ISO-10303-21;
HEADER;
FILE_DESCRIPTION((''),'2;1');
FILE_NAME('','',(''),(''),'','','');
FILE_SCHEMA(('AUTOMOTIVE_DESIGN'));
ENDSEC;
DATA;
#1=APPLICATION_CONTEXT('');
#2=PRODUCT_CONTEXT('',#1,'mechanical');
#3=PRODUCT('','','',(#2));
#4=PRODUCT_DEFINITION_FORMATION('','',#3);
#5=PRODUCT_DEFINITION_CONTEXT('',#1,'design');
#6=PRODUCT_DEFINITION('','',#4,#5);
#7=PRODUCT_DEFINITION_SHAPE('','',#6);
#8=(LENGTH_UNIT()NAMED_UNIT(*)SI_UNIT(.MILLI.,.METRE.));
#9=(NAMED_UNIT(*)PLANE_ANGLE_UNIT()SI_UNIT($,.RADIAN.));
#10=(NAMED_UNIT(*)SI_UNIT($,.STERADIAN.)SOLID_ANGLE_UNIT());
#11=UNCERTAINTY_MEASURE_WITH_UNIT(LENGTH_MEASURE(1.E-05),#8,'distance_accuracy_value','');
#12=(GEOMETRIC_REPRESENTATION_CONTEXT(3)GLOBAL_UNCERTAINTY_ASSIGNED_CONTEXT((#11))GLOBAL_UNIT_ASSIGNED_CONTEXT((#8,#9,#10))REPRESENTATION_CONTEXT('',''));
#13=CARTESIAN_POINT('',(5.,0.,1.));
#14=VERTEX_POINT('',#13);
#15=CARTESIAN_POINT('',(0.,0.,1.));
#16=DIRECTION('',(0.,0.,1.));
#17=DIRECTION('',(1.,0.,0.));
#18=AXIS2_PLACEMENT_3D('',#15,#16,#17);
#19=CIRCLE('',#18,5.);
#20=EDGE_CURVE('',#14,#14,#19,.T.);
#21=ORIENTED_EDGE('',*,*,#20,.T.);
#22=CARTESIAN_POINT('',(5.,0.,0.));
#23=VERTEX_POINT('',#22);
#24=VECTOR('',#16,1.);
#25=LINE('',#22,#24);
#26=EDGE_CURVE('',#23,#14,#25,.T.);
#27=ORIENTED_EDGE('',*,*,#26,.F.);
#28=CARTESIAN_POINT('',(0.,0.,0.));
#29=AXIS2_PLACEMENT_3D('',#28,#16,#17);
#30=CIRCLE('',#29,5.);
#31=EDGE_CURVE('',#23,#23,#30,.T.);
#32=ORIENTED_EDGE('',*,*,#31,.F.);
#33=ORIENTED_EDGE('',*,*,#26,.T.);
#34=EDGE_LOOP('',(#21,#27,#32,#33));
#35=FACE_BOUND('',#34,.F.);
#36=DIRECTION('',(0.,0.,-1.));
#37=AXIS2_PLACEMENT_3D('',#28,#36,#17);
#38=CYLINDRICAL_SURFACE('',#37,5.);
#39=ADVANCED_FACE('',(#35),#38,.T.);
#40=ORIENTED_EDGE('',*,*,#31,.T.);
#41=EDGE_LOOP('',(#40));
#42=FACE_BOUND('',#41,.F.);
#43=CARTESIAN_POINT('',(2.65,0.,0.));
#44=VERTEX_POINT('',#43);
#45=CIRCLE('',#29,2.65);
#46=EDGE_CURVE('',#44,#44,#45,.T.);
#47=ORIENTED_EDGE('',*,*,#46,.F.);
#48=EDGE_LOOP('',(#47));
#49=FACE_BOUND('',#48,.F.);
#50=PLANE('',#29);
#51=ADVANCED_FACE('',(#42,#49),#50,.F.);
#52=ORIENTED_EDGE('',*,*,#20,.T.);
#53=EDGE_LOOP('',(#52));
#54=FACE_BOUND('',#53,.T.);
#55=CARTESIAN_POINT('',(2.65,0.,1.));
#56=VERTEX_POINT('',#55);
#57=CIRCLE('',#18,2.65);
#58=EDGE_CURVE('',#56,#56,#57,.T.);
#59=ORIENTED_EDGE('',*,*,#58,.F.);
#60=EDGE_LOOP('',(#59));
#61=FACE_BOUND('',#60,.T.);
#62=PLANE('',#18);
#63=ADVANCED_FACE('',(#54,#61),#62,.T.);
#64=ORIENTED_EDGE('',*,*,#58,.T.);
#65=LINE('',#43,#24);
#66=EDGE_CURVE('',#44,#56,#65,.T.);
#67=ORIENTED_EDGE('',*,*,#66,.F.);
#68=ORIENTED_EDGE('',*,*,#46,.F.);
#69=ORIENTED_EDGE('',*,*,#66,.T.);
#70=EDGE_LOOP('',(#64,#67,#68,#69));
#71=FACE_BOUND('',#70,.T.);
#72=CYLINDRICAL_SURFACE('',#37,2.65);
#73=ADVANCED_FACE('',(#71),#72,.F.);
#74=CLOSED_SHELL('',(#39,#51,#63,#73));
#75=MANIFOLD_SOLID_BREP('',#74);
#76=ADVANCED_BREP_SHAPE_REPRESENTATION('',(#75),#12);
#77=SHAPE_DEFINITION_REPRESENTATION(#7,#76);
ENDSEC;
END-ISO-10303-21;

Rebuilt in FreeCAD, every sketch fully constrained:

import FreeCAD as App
import Part
import Sketcher

V = App.Vector

doc = App.newDocument("Part")
body = doc.addObject("PartDesign::Body", "Body")

# Sketch on XY plane
sketch1 = body.newObject("Sketcher::SketchObject", "Sketch")
sketch1.AttachmentSupport = (doc.getObject("XY_Plane"), [""])
sketch1.MapMode = "FlatFace"
sketch1.addGeometry([
    Part.Circle(V(0, 0, 0), V(0, 0, 1), 5),
    Part.Circle(V(0, 0, 0), V(0, 0, 1), 2.6),
], False)
sketch1.addConstraint([
    Sketcher.Constraint("Coincident", 0, 3, -1, 1),
    Sketcher.Constraint("Coincident", 1, 3, -1, 1),
    Sketcher.Constraint("Diameter", 0, 10.0),
    Sketcher.Constraint("Diameter", 1, 5.3),
])
pad1 = body.newObject("PartDesign::Pad", "Pad")
pad1.Profile = sketch1
pad1.Length = 1

doc.recompute()
